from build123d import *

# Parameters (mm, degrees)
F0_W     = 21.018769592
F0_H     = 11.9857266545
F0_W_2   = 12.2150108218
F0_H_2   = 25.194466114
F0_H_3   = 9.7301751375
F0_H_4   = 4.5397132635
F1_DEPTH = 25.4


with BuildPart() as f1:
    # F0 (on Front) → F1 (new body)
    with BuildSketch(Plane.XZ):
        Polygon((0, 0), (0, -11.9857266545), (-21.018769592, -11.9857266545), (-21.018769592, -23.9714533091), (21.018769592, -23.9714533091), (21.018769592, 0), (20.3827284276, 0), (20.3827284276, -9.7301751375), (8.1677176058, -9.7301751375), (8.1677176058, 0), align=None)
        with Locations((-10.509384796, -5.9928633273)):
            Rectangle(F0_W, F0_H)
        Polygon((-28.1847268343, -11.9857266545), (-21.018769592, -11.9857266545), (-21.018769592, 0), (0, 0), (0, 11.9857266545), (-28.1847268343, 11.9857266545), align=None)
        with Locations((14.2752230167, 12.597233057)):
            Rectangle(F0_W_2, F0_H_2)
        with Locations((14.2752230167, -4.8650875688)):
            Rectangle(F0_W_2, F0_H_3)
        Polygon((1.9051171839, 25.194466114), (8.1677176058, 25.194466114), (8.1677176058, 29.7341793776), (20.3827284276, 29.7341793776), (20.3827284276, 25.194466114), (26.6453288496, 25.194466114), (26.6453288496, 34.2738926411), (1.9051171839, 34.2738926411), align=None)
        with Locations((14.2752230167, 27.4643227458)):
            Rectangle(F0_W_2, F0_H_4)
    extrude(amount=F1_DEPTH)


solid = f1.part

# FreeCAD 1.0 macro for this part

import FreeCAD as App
import Part
import Sketcher
Q = App.Units.Quantity


def add_polygon(sketch, points):
    """Adds a closed chain of lines whose ends are joined by coincident constraints."""
    first, n = sketch.GeometryCount, len(points)
    for a, b in zip(points, points[1:] + points[:1]):
        sketch.addGeometry(Part.LineSegment(App.Vector(*a, 0), App.Vector(*b, 0)), False)
    for i in range(n):
        sketch.addConstraint(Sketcher.Constraint("Coincident", first + i, 2, first + (i + 1) % n, 1))

doc = App.newDocument("Part")
body = doc.addObject("PartDesign::Body", "Body")

# Sketch on XZ plane
sketch1 = doc.addObject("Sketcher::SketchObject", "Sketch")
body.addObject(sketch1)
sketch1.AttachmentSupport = (doc.XZ_Plane, [""])
sketch1.MapMode = "FlatFace"
add_polygon(sketch1, [(-21, -24), (21, -24), (21, 0), (20.4, 0), (20.4, 25.2), (26.6, 25.2), (26.6, 34.3), (1.9, 34.3), (1.9, 25.2), (8.2, 25.2), (8.2, 0), (0, 0), (0, 12), (-28.2, 12), (-28.2, -12), (-21, -12)])  # lines 0-15
sketch1.addConstraint([
    Sketcher.Constraint("Horizontal", 0),
    Sketcher.Constraint("Vertical", 1),
    Sketcher.Constraint("Horizontal", 2),
    Sketcher.Constraint("Vertical", 3),
    Sketcher.Constraint("Horizontal", 4),
    Sketcher.Constraint("Vertical", 5),
    Sketcher.Constraint("Horizontal", 6),
    Sketcher.Constraint("Vertical", 7),
    Sketcher.Constraint("Horizontal", 8),
    Sketcher.Constraint("Vertical", 9),
    Sketcher.Constraint("Horizontal", 10),
    Sketcher.Constraint("Vertical", 11),
    Sketcher.Constraint("Horizontal", 12),
    Sketcher.Constraint("Vertical", 13),
    Sketcher.Constraint("Horizontal", 14),
    Sketcher.Constraint("Vertical", 15),
    Sketcher.Constraint("Coincident", 10, 2, -1, 1),
    Sketcher.Constraint("PointOnObject", 1, 2, -1),
    Sketcher.Constraint("Horizontal", 4, 2, 7, 2),
    Sketcher.Constraint("Equal", 4, 8),
    Sketcher.Constraint("Equal", 1, 13),
    Sketcher.Constraint("DistanceX", 4, 1, 4, 2, Q("6.2626 mm")),
    Sketcher.Constraint("DistanceX", 0, 1, 0, 2, Q("42.037539 mm")),
    Sketcher.Constraint("DistanceX", 2, 2, 2, 1, Q("0.636041 mm")),
    Sketcher.Constraint("DistanceX", 6, 2, 6, 1, Q("24.740212 mm")),
    Sketcher.Constraint("DistanceX", 10, 2, 10, 1, Q("8.167718 mm")),
    Sketcher.Constraint("DistanceX", 12, 2, 12, 1, Q("28.184727 mm")),
    Sketcher.Constraint("DistanceY", 1, 1, 1, 2, Q("23.971453 mm")),
    Sketcher.Constraint("DistanceY", 3, 1, 3, 2, Q("25.194466 mm")),
    Sketcher.Constraint("DistanceY", 5, 1, 5, 2, Q("9.079427 mm")),
    Sketcher.Constraint("DistanceY", 11, 1, 11, 2, Q("11.985727 mm")),
])
pad1 = doc.addObject("PartDesign::Pad", "Pad")
body.addObject(pad1)
pad1.Profile = sketch1
pad1.Length = Q("1 in")

doc.recompute()
